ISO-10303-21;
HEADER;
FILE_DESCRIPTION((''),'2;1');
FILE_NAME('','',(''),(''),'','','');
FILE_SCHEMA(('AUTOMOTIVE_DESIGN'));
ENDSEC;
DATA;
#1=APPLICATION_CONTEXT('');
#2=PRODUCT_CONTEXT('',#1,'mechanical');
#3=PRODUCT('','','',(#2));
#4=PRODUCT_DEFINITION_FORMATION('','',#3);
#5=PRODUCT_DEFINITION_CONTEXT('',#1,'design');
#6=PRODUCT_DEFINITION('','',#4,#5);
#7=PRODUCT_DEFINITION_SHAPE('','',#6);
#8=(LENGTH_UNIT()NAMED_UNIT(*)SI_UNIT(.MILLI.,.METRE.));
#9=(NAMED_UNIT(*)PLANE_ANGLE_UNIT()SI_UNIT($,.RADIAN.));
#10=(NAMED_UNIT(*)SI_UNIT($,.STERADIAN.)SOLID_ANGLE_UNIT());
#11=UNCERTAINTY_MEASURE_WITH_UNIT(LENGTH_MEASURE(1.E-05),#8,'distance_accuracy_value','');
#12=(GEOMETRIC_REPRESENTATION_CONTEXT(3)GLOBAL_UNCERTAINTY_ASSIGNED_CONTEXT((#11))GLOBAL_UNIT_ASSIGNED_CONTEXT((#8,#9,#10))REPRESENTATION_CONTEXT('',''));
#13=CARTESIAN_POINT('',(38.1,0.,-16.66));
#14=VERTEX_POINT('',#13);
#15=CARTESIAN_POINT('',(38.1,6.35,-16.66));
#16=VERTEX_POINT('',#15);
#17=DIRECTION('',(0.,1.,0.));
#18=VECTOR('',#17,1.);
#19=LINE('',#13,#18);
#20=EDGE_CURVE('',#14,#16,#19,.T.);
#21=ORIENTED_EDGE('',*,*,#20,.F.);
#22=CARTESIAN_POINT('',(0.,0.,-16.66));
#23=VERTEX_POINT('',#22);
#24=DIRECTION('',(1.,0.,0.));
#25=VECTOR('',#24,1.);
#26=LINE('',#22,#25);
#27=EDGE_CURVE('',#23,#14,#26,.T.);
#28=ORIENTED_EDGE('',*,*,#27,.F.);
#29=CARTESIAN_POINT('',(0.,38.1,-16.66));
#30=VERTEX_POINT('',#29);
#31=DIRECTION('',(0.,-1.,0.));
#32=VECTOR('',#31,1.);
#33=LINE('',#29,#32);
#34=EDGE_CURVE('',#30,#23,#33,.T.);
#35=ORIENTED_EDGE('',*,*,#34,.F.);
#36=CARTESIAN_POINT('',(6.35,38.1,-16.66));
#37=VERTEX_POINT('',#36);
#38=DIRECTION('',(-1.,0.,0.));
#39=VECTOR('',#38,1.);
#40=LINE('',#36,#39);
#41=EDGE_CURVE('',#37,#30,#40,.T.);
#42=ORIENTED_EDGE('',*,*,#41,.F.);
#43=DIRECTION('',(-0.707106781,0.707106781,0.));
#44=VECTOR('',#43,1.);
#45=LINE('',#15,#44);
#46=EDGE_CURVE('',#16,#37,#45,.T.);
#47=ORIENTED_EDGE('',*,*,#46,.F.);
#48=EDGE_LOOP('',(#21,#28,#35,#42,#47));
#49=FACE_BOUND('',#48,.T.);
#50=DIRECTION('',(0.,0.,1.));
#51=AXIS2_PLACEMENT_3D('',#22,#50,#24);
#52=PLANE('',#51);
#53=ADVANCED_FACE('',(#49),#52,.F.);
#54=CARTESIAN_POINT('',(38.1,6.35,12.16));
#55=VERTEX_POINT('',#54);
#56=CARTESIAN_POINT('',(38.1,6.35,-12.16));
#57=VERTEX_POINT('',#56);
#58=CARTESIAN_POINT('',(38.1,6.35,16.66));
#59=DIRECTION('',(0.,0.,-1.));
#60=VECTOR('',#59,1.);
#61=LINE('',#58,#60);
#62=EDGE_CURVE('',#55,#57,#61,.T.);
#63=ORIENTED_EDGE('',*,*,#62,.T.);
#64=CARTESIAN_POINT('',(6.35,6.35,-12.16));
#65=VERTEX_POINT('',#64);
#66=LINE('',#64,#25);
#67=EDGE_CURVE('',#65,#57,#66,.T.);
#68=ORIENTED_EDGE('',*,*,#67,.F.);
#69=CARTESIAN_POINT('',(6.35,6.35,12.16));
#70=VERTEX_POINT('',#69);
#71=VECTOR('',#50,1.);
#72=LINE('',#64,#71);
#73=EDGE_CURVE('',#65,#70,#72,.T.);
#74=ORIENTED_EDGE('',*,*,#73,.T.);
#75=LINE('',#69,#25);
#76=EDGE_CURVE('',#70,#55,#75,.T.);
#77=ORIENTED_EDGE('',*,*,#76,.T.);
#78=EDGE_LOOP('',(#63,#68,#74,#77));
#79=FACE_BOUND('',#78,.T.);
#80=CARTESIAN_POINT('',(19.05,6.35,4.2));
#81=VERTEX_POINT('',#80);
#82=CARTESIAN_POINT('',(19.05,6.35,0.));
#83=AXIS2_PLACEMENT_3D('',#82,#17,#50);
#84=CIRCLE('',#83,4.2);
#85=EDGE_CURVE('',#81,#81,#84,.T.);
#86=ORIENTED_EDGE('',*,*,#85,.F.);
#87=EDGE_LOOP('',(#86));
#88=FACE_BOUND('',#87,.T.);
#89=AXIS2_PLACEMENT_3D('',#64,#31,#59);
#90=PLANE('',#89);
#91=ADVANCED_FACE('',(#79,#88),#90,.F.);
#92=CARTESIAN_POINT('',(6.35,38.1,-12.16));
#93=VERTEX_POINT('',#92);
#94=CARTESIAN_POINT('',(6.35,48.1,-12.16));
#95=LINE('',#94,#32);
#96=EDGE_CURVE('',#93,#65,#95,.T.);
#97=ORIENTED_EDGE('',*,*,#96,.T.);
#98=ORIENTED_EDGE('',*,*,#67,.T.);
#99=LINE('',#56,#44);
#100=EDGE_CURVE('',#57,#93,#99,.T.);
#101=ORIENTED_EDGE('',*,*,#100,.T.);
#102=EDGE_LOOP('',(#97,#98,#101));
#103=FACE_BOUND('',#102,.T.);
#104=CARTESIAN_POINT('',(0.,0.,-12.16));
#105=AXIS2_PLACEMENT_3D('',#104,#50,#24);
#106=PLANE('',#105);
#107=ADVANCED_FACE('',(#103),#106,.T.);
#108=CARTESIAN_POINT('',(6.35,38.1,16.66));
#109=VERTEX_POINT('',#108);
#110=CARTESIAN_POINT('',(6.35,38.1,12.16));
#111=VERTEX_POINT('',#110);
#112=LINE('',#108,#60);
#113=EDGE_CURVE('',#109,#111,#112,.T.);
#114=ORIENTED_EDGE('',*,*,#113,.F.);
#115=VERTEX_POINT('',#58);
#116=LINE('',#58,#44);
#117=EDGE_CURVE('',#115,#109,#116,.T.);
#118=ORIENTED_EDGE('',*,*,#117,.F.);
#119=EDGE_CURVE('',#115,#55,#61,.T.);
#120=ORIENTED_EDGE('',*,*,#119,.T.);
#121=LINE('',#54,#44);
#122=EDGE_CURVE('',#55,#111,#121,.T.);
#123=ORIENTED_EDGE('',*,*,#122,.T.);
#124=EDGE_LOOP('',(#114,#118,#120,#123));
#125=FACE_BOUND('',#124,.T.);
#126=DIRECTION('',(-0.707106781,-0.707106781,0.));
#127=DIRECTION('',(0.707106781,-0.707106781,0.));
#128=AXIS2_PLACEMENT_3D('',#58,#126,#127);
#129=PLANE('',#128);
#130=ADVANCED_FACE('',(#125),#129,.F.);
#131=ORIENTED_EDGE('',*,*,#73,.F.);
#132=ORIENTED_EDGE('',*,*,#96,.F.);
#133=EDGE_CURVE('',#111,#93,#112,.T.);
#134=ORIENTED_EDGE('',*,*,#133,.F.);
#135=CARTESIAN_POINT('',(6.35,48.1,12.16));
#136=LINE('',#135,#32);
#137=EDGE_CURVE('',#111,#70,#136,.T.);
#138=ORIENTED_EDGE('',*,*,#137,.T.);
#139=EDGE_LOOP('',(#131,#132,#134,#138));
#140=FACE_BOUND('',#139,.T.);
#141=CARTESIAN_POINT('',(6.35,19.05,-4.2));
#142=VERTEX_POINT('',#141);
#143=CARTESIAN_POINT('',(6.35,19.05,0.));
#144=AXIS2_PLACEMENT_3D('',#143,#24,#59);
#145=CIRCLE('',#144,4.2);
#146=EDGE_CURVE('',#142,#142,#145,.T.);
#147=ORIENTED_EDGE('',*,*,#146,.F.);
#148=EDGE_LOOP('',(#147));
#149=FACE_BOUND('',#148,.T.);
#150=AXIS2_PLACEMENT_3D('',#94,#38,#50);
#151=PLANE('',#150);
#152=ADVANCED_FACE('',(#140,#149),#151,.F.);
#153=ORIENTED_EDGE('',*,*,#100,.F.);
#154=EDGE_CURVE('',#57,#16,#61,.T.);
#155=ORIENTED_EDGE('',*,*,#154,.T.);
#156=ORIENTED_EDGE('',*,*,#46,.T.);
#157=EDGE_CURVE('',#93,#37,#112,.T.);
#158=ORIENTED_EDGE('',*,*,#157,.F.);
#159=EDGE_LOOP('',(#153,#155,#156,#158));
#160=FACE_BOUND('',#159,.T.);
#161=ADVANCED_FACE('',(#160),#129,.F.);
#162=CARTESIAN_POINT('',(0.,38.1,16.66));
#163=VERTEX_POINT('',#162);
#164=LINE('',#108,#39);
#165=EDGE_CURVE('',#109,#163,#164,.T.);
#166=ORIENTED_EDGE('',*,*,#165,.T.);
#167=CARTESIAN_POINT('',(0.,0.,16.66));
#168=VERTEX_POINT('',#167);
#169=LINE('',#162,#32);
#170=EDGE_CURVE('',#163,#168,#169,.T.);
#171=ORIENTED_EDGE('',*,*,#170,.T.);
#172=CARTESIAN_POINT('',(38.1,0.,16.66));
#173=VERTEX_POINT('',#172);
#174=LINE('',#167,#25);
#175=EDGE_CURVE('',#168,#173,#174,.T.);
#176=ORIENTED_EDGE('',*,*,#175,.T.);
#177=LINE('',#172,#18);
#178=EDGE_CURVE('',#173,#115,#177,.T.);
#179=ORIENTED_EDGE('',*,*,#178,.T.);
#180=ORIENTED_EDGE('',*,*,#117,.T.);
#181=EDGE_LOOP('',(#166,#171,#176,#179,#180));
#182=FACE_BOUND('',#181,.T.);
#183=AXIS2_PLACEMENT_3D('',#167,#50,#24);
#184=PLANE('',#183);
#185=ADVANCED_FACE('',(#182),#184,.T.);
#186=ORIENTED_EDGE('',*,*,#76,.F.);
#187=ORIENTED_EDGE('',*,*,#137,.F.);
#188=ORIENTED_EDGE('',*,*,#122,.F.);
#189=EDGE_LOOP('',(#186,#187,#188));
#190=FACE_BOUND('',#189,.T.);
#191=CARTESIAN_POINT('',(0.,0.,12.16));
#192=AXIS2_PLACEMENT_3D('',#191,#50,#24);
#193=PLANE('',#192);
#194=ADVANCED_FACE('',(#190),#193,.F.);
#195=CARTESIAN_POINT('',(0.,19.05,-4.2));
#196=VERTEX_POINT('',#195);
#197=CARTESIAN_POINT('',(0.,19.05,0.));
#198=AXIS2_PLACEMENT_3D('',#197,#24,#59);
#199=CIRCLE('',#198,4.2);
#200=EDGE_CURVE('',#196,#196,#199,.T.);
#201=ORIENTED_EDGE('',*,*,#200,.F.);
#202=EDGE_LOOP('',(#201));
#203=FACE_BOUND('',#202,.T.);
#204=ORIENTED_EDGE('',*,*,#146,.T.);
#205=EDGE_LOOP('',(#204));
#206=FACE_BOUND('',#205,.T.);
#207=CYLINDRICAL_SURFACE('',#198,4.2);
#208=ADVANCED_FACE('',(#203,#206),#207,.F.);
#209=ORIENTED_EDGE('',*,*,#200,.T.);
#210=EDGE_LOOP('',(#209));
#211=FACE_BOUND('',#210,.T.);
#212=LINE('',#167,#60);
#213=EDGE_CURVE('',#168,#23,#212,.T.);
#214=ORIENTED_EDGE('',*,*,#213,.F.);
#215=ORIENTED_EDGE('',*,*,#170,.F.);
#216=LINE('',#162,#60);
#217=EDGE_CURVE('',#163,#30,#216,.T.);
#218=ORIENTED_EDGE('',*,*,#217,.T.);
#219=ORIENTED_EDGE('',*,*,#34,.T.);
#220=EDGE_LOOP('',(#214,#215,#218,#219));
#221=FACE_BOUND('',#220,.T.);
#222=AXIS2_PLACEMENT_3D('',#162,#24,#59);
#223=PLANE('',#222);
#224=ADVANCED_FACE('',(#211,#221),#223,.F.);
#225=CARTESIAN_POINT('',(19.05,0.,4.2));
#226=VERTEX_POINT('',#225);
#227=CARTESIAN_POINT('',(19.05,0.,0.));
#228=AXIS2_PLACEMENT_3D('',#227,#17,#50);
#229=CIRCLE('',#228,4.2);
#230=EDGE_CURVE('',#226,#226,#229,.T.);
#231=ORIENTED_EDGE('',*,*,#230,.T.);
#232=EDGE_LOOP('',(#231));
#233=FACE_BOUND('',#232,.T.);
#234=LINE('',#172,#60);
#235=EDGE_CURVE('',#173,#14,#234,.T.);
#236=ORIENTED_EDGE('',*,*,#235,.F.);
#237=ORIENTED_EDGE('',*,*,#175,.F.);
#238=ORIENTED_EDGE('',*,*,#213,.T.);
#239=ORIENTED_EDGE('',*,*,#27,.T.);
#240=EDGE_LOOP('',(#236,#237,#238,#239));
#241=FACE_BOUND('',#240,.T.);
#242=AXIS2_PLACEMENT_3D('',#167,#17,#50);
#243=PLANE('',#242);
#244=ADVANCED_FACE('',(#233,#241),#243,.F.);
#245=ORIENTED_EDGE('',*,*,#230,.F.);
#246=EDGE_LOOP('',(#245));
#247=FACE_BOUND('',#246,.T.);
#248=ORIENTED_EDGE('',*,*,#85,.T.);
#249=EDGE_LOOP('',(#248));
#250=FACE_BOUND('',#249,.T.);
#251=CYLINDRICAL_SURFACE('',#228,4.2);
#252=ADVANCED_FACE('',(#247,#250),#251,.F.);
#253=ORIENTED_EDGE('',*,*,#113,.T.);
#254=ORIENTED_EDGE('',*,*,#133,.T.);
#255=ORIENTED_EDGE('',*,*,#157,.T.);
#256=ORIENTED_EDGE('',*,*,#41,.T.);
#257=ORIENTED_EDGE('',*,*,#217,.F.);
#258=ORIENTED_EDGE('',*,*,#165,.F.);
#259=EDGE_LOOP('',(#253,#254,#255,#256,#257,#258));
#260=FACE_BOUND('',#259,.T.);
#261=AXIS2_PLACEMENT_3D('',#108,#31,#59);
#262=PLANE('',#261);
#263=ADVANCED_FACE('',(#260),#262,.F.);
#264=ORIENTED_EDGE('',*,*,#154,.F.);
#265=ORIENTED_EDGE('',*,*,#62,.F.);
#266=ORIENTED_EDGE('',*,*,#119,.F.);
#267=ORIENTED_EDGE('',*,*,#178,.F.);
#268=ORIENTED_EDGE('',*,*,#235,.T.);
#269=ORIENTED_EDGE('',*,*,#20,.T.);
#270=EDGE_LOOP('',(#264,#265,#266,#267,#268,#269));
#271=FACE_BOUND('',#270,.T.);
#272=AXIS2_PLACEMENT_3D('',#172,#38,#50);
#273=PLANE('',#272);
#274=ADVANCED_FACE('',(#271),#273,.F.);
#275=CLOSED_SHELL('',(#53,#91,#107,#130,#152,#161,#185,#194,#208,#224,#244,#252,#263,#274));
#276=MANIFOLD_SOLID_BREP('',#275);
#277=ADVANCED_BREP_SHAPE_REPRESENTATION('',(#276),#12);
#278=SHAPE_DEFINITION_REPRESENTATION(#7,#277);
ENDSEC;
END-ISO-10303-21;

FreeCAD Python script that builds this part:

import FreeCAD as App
import Part
import Sketcher

V = App.Vector
Q = App.Units.Quantity


def add_polygon(sketch, points):
    """Adds a closed chain of lines whose ends are joined by coincident constraints."""
    first, n = sketch.GeometryCount, len(points)
    for a, b in zip(points, points[1:] + points[:1]):
        sketch.addGeometry(Part.LineSegment(App.Vector(*a, 0), App.Vector(*b, 0)), False)
    for i in range(n):
        sketch.addConstraint(Sketcher.Constraint("Coincident", first + i, 2, first + (i + 1) % n, 1))

doc = App.newDocument("Part")
params = doc.addObject("Spreadsheet::Sheet", "Params")
for row, (alias, value) in enumerate([
    ("sketch1_width", "1.5 in"),
    ("sketch1_width2", "0.25 in"),
    ("pad1_length", "33.32 mm"),
    ("pocket1_length", "24.32 mm"),
    ("pocket2_length", "0.25 in"),
    ("pocket3_length", "0.25 in"),
], start=1):
    params.set(f"A{row}", alias)
    params.set(f"B{row}", "=" + value)
    params.setAlias(f"B{row}", alias)

body = doc.addObject("PartDesign::Body", "Body")

# Sketch on XY plane
sketch1 = body.newObject("Sketcher::SketchObject", "Sketch")
sketch1.AttachmentSupport = (doc.getObject("XY_Plane"), [""])
sketch1.MapMode = "FlatFace"
sketch1.AttachmentOffset = App.Placement(V(0, 0, -16.66), App.Rotation())
add_polygon(sketch1, [(0, 0), (38, 0), (38, 6), (6, 38), (0, 38)])  # lines 0-4
sketch1.addConstraint([
    Sketcher.Constraint("Horizontal", 0),
    Sketcher.Constraint("Vertical", 1),
    Sketcher.Constraint("Horizontal", 3),
    Sketcher.Constraint("Vertical", 4),
    Sketcher.Constraint("Coincident", 4, 2, -1, 1),
    Sketcher.Constraint("Equal", 3, 1),
    Sketcher.Constraint("Equal", 0, 4),
    Sketcher.Constraint("DistanceX", 0, 1, 0, 2, Q("1.5 in")),
    Sketcher.Constraint("DistanceX", 3, 2, 3, 1, Q("0.25 in")),
])
sketch1.setExpression("Constraints[12]", "Params.sketch1_width")
sketch1.setExpression("Constraints[13]", "Params.sketch1_width2")
pad1 = body.newObject("PartDesign::Pad", "Pad")
pad1.Profile = sketch1
pad1.setExpression("Length", "Params.pad1_length")

# Sketch on XY plane
sketch2 = body.newObject("Sketcher::SketchObject", "Sketch001")
sketch2.AttachmentSupport = (doc.getObject("XY_Plane"), [""])
sketch2.MapMode = "FlatFace"
sketch2.AttachmentOffset = App.Placement(V(0, 0, 12.16), App.Rotation())
add_polygon(sketch2, [(6, 6), (48, 6), (6, 48)])  # lines 0-2
sketch2.addConstraint([
    Sketcher.Constraint("Horizontal", 0),
    Sketcher.Constraint("Vertical", 2),
    Sketcher.Constraint("Equal", 0, 2),
    Sketcher.Constraint("DistanceY", -1, 1, 0, 2, Q("0.25 in")),
    Sketcher.Constraint("DistanceX", -1, 1, 1, 2, Q("0.25 in")),
    Sketcher.Constraint("DistanceX", 0, 1, 0, 2, Q("41.75 mm")),
])
pocket1 = body.newObject("PartDesign::Pocket", "Pocket")
pocket1.Profile = sketch2
pocket1.setExpression("Length", "Params.pocket1_length")

# Sketch on XZ plane
sketch3 = body.newObject("Sketcher::SketchObject", "Sketch002")
sketch3.AttachmentSupport = (doc.getObject("XZ_Plane"), [""])
sketch3.MapMode = "FlatFace"
sketch3.AttachmentOffset = App.Placement(V(0, 0, -0.25 * 25.4), App.Rotation())
sketch3.addGeometry(Part.Circle(V(19.1, 0, 0), V(0, 0, 1), 4.2), False)
sketch3.addConstraint([
    Sketcher.Constraint("PointOnObject", 0, 3, -1),
    Sketcher.Constraint("Diameter", 0, Q("8.4 mm")),
    Sketcher.Constraint("DistanceX", -1, 1, 0, 3, Q("0.75 in")),
])
pocket2 = body.newObject("PartDesign::Pocket", "Pocket001")
pocket2.Profile = sketch3
pocket2.setExpression("Length", "Params.pocket2_length")
pocket2.Reversed = True

# Sketch on YZ plane
sketch4 = body.newObject("Sketcher::SketchObject", "Sketch003")
sketch4.AttachmentSupport = (doc.getObject("YZ_Plane"), [""])
sketch4.MapMode = "FlatFace"
sketch4.AttachmentOffset = App.Placement(V(0, 0, 0.25 * 25.4), App.Rotation())
sketch4.addGeometry(Part.Circle(V(19.1, 0, 0), V(0, 0, 1), 4.2), False)
sketch4.addConstraint([
    Sketcher.Constraint("PointOnObject", 0, 3, -1),
    Sketcher.Constraint("Diameter", 0, Q("8.4 mm")),
    Sketcher.Constraint("DistanceX", -1, 1, 0, 3, Q("0.75 in")),
])
pocket3 = body.newObject("PartDesign::Pocket", "Pocket002")
pocket3.Profile = sketch4
pocket3.setExpression("Length", "Params.pocket3_length")

doc.recompute()
